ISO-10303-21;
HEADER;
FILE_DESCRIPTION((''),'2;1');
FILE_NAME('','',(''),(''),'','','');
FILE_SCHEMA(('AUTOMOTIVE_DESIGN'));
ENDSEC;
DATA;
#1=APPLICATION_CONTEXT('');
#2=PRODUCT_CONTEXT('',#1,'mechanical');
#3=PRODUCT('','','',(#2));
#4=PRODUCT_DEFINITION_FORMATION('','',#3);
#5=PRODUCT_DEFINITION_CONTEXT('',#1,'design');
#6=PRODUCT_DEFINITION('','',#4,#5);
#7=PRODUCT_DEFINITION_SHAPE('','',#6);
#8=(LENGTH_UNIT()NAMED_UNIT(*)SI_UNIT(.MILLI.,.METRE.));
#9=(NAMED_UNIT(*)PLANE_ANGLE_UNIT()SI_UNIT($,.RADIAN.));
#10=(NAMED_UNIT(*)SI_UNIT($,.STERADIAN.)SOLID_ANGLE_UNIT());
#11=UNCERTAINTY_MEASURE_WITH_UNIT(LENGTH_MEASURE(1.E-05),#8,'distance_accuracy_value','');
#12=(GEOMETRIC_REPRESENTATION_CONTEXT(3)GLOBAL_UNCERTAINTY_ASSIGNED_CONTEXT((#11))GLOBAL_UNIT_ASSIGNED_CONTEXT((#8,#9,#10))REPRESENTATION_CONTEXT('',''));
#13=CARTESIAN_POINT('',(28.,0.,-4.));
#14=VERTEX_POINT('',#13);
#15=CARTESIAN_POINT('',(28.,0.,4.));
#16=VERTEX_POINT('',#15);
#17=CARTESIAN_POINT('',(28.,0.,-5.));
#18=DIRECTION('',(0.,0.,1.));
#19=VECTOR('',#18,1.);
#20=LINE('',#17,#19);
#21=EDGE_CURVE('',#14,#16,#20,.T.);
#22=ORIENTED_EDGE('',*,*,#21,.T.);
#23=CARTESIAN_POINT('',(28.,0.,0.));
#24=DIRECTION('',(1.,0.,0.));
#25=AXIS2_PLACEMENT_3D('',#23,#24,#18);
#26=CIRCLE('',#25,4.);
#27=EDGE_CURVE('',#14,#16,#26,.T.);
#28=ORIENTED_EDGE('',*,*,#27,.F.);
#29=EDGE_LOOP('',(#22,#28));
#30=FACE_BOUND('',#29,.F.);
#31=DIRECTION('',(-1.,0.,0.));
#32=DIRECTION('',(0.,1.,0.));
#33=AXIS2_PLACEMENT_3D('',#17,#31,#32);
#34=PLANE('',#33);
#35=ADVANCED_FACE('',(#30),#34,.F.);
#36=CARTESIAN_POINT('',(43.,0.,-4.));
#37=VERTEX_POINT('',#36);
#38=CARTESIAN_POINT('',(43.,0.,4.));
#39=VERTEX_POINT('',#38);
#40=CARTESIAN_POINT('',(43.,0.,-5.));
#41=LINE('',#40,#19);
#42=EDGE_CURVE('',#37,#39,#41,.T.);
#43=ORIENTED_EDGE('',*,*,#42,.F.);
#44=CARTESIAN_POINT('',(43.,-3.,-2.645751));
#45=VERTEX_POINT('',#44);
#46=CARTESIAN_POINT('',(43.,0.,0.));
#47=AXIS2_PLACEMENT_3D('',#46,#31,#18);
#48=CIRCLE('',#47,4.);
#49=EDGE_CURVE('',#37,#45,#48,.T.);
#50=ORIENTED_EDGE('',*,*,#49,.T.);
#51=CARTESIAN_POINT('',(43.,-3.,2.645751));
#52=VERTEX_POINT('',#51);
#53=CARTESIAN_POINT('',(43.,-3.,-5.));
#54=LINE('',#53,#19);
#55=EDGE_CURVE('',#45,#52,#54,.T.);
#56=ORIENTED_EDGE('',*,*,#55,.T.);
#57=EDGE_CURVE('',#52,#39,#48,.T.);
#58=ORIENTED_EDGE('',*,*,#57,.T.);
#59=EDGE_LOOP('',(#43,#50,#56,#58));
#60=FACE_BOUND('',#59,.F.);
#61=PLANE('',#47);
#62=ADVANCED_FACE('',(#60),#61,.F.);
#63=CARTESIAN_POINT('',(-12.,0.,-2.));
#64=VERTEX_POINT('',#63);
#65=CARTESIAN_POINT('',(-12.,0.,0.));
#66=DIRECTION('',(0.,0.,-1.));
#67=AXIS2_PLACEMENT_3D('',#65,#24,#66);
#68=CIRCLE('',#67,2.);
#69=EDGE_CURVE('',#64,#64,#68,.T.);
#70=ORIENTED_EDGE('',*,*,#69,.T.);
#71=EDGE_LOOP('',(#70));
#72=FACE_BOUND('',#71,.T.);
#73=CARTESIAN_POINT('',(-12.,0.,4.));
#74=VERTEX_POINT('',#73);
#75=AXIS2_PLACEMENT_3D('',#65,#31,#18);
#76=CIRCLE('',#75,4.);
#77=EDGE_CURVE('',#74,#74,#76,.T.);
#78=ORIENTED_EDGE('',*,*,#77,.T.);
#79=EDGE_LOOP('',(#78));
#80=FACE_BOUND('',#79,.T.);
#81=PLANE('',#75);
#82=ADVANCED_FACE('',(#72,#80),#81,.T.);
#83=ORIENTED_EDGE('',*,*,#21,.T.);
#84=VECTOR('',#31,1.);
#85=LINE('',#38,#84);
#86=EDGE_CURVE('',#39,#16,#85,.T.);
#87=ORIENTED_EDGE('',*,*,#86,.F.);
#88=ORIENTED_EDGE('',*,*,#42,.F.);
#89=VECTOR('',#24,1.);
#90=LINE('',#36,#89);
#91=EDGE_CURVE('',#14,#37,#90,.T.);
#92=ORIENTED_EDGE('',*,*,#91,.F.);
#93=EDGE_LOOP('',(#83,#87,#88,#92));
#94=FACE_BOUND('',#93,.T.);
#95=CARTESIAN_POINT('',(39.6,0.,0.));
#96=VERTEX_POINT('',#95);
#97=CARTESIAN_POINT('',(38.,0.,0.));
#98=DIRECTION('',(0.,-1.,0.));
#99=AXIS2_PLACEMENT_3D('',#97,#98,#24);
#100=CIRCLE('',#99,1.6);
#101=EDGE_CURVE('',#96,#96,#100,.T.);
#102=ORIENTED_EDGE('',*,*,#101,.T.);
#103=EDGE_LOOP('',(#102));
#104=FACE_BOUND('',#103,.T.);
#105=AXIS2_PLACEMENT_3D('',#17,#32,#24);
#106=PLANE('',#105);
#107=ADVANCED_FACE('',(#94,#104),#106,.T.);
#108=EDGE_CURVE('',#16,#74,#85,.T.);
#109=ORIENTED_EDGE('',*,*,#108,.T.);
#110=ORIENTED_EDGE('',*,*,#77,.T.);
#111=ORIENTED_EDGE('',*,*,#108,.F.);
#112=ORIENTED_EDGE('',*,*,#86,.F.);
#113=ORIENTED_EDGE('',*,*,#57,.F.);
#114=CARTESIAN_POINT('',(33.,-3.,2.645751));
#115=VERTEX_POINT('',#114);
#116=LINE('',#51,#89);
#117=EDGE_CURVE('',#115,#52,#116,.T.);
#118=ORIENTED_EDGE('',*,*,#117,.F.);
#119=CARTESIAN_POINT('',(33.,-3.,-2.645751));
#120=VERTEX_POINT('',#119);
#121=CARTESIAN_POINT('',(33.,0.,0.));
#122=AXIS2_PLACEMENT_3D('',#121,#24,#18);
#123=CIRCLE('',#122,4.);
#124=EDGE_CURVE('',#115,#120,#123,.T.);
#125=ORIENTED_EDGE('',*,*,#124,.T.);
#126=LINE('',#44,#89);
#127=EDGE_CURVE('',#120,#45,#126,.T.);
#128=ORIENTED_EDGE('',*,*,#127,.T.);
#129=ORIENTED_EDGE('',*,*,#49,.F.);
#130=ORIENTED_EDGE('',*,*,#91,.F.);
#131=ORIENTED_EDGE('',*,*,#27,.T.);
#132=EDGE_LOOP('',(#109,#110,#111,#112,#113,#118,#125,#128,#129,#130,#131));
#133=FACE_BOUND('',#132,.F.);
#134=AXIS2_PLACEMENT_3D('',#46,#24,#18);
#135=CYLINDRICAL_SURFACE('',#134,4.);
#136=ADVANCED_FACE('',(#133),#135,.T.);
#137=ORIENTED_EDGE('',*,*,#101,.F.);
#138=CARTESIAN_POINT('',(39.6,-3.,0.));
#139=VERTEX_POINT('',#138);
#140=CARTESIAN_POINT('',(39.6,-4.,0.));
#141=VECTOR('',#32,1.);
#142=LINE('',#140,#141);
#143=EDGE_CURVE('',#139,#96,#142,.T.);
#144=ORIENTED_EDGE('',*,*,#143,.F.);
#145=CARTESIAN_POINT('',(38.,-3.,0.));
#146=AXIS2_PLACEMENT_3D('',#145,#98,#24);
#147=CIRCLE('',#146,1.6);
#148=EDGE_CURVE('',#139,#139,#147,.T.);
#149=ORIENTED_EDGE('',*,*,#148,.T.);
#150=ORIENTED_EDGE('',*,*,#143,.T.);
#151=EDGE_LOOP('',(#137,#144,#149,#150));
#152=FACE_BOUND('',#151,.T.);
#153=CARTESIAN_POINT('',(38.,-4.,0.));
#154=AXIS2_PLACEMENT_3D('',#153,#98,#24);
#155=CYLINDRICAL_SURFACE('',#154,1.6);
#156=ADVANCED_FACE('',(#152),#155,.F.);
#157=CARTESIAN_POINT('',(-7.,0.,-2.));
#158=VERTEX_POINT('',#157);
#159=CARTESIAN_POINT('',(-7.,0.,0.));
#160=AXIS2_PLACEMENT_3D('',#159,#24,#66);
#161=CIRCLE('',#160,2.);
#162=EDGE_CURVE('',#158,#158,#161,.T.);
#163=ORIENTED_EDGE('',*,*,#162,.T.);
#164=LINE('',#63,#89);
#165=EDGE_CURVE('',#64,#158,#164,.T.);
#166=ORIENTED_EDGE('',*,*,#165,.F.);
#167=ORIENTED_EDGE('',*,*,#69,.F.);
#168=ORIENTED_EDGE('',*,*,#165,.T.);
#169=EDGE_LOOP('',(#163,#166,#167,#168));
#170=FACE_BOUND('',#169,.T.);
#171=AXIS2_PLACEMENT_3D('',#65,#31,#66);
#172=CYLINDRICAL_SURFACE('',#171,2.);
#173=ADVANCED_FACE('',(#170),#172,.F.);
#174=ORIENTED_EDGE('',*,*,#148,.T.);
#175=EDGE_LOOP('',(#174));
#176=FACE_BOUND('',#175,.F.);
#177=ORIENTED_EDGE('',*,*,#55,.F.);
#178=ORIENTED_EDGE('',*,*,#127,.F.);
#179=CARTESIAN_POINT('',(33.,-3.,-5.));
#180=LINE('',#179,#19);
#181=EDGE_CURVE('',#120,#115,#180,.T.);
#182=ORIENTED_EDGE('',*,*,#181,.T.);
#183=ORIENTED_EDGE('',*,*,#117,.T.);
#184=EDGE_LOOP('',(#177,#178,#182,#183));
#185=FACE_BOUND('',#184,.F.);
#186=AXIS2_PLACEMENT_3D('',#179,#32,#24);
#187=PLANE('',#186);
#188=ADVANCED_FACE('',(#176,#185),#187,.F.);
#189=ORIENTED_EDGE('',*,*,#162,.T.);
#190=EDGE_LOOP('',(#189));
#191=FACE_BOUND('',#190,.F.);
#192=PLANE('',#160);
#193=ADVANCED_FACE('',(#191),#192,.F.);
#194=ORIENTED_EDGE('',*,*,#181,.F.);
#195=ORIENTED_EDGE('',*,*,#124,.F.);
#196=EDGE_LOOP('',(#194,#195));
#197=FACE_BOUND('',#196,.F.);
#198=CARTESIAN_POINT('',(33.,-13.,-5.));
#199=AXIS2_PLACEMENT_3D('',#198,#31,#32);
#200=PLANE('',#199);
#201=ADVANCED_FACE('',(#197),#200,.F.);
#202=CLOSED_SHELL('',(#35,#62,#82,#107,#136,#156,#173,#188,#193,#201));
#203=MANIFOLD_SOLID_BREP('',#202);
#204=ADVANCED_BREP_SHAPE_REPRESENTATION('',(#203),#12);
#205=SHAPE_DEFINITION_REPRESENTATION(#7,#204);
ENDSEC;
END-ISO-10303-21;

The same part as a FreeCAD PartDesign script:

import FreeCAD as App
import Part
import Sketcher
from FreeCAD import Vector
Q = App.Units.Quantity

doc = App.newDocument("Part")
body = doc.addObject("PartDesign::Body", "Body")

sketch1 = body.newObject("Sketcher::SketchObject", "Sketch")
sketch1.AttachmentSupport = (doc.getObject("YZ_Plane"), [""])
sketch1.MapMode = "FlatFace"
sketch1.AttachmentOffset = App.Placement(Vector(0, 0, -12), App.Rotation())
sketch1.addGeometry(Part.Circle(Vector(0, 0, 0), Vector(0, 0, 1), 2), False)
sketch1.addConstraint([
    Sketcher.Constraint("Coincident", 0, 3, -1, 1),
    Sketcher.Constraint("Diameter", 0, Q("4 mm")),
])
pad1 = body.newObject("PartDesign::Pad", "Pad")
pad1.Profile = sketch1
pad1.Length = 5
body2 = doc.addObject("PartDesign::Body", "Body001")

sketch2 = body2.newObject("Sketcher::SketchObject", "Sketch001")
sketch2.AttachmentSupport = (doc.getObject("XZ_Plane001"), [""])
sketch2.MapMode = "FlatFace"
sketch2.AttachmentOffset = App.Placement(Vector(0, 0, 4), App.Rotation())
sketch2.addGeometry(Part.Circle(Vector(38, 0, 0), Vector(0, 0, 1), 1.6), False)
sketch2.addConstraint([
    Sketcher.Constraint("PointOnObject", 0, 3, -1),
    Sketcher.Constraint("Diameter", 0, Q("3.2 mm")),
    Sketcher.Constraint("DistanceX", -1, 1, 0, 3, Q("38 mm")),
])
pad2 = body2.newObject("PartDesign::Pad", "Pad001")
pad2.Profile = sketch2
pad2.Length = 5
pad2.Reversed = True
body3 = doc.addObject("PartDesign::Body", "Body002")

sketch3 = body3.newObject("Sketcher::SketchObject", "Sketch002")
sketch3.AttachmentSupport = (doc.getObject("XY_Plane002"), [""])
sketch3.MapMode = "FlatFace"
sketch3.AttachmentOffset = App.Placement(Vector(0, 0, -5), App.Rotation())
sketch3.addGeometry([
    Part.LineSegment(Vector(33, -3, 0), Vector(33, -13, 0)),
    Part.LineSegment(Vector(33, -13, 0), Vector(43, -13, 0)),
    Part.LineSegment(Vector(43, -13, 0), Vector(43, -3, 0)),
    Part.LineSegment(Vector(43, -3, 0), Vector(33, -3, 0)),
], False)
sketch3.addConstraint([
    Sketcher.Constraint("Coincident", 0, 2, 1, 1),
    Sketcher.Constraint("Coincident", 1, 2, 2, 1),
    Sketcher.Constraint("Coincident", 2, 2, 3, 1),
    Sketcher.Constraint("Coincident", 3, 2, 0, 1),
    Sketcher.Constraint("Vertical", 0),
    Sketcher.Constraint("Horizontal", 1),
    Sketcher.Constraint("Vertical", 2),
    Sketcher.Constraint("Horizontal", 3),
    Sketcher.Constraint("Equal", 3, 0),
    Sketcher.Constraint("DistanceX", 1, 1, 1, 2, Q("10 mm")),
    Sketcher.Constraint("DistanceX", -1, 1, 0, 2, Q("33 mm")),
    Sketcher.Constraint("DistanceY", 0, 2, -1, 1, Q("13 mm")),
])
pad3 = body3.newObject("PartDesign::Pad", "Pad002")
pad3.Profile = sketch3
pad3.Length = 10
body4 = doc.addObject("PartDesign::Body", "Body003")

sketch4 = body4.newObject("Sketcher::SketchObject", "Sketch003")
sketch4.AttachmentSupport = (doc.getObject("XY_Plane003"), [""])
sketch4.MapMode = "FlatFace"
sketch4.AttachmentOffset = App.Placement(Vector(0, 0, -5), App.Rotation())
sketch4.addGeometry([
    Part.LineSegment(Vector(28, 10, 0), Vector(28, 0, 0)),
    Part.LineSegment(Vector(28, 0, 0), Vector(43, 0, 0)),
    Part.LineSegment(Vector(43, 0, 0), Vector(43, 10, 0)),
    Part.LineSegment(Vector(43, 10, 0), Vector(28, 10, 0)),
], False)
sketch4.addConstraint([
    Sketcher.Constraint("Coincident", 0, 2, 1, 1),
    Sketcher.Constraint("Coincident", 1, 2, 2, 1),
    Sketcher.Constraint("Coincident", 2, 2, 3, 1),
    Sketcher.Constraint("Coincident", 3, 2, 0, 1),
    Sketcher.Constraint("Vertical", 0),
    Sketcher.Constraint("Horizontal", 1),
    Sketcher.Constraint("Vertical", 2),
    Sketcher.Constraint("Horizontal", 3),
    Sketcher.Constraint("PointOnObject", 0, 2, -1),
    Sketcher.Constraint("DistanceX", 1, 1, 1, 2, Q("15 mm")),
    Sketcher.Constraint("DistanceY", 0, 2, 0, 1, Q("10 mm")),
    Sketcher.Constraint("DistanceX", -1, 1, 0, 2, Q("28 mm")),
])
pad4 = body4.newObject("PartDesign::Pad", "Pad003")
pad4.Profile = sketch4
pad4.Length = 10
body5 = doc.addObject("PartDesign::Body", "Body004")

sketch5 = body5.newObject("Sketcher::SketchObject", "Sketch004")
sketch5.AttachmentSupport = (doc.getObject("YZ_Plane004"), [""])
sketch5.MapMode = "FlatFace"
sketch5.AttachmentOffset = App.Placement(Vector(0, 0, 43), App.Rotation())
sketch5.addGeometry(Part.Circle(Vector(0, 0, 0), Vector(0, 0, 1), 4), False)
sketch5.addConstraint([
    Sketcher.Constraint("Coincident", 0, 3, -1, 1),
    Sketcher.Constraint("Diameter", 0, Q("8 mm")),
])
pad5 = body5.newObject("PartDesign::Pad", "Pad004")
pad5.Profile = sketch5
pad5.Length = 55
pad5.Reversed = True
doc.recompute()

boolean = body5.newObject("PartDesign::Boolean", "Boolean")
boolean.Type = "Cut"
boolean.addObjects([body4])
doc.recompute()

boolean2 = body5.newObject("PartDesign::Boolean", "Boolean001")
boolean2.Type = "Cut"
boolean2.addObjects([body3])
doc.recompute()

boolean3 = body5.newObject("PartDesign::Boolean", "Boolean002")
boolean3.Type = "Cut"
boolean3.addObjects([body2])
doc.recompute()

boolean4 = body5.newObject("PartDesign::Boolean", "Boolean003")
boolean4.Type = "Cut"
boolean4.addObjects([body])

doc.recompute()
